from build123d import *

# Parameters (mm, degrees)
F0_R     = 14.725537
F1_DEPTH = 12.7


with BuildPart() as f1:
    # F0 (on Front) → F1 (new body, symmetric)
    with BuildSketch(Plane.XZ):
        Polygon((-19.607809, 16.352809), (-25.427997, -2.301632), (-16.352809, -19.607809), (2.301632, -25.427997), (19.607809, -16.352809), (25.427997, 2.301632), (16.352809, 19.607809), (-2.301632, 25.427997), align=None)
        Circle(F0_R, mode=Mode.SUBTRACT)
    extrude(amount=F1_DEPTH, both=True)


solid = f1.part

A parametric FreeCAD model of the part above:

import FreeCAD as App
import Part
import Sketcher

V = App.Vector
Q = App.Units.Quantity


def add_polygon(sketch, points):
    """Adds a closed chain of lines whose ends are joined by coincident constraints."""
    first, n = sketch.GeometryCount, len(points)
    for a, b in zip(points, points[1:] + points[:1]):
        sketch.addGeometry(Part.LineSegment(App.Vector(*a, 0), App.Vector(*b, 0)), False)
    for i in range(n):
        sketch.addConstraint(Sketcher.Constraint("Coincident", first + i, 2, first + (i + 1) % n, 1))

doc = App.newDocument("Part")
params = doc.addObject("Spreadsheet::Sheet", "Params")
for row, (alias, value) in enumerate([
    ("pad1_length", "1 in"),
], start=1):
    params.set(f"A{row}", alias)
    params.set(f"B{row}", "=" + value)
    params.setAlias(f"B{row}", alias)

body = doc.addObject("PartDesign::Body", "Body")

# Sketch on XZ plane
sketch1 = body.newObject("Sketcher::SketchObject", "Sketch")
sketch1.AttachmentSupport = (doc.getObject("XZ_Plane"), [""])
sketch1.MapMode = "FlatFace"
add_polygon(sketch1, [(-20, 16), (-25, -2), (-16, -20), (2, -25), (20, -16), (25, 2), (16, 20), (-2, 25)])  # lines 0-7
sketch1.addGeometry(Part.Circle(V(0, 0, 0), V(0, 0, 1), 15), False)  # 8
sketch1.addConstraint([
    Sketcher.Constraint("Coincident", 8, 3, -1, 1),
    Sketcher.Constraint("Symmetric", 0, 2, 4, 2, -1, 1),
    Sketcher.Constraint("Symmetric", 1, 2, 5, 2, -1, 1),
    Sketcher.Constraint("Symmetric", 2, 2, 6, 2, -1, 1),
    Sketcher.Constraint("Symmetric", 3, 2, 7, 2, -1, 1),
    Sketcher.Constraint("Perpendicular", 0, 2),
    Sketcher.Constraint("Perpendicular", 1, 3),
    Sketcher.Constraint("Equal", 0, 1),
    Sketcher.Constraint("Equal", 1, 2),
    Sketcher.Constraint("Equal", 2, 3),
    Sketcher.Constraint("Diameter", 8, Q("29.451074 mm")),
    Sketcher.Constraint("DistanceY", 1, 2, 3, 2, Q("3.255 mm")),
    Sketcher.Constraint("Distance", 0, Q("19.541309 mm")),
    Sketcher.Constraint("DistanceX", 1, 2, -1, 1, Q("16.352809 mm")),
])
pad1 = body.newObject("PartDesign::Pad", "Pad")
pad1.Profile = sketch1
pad1.setExpression("Length", "Params.pad1_length")
pad1.Midplane = True

doc.recompute()
